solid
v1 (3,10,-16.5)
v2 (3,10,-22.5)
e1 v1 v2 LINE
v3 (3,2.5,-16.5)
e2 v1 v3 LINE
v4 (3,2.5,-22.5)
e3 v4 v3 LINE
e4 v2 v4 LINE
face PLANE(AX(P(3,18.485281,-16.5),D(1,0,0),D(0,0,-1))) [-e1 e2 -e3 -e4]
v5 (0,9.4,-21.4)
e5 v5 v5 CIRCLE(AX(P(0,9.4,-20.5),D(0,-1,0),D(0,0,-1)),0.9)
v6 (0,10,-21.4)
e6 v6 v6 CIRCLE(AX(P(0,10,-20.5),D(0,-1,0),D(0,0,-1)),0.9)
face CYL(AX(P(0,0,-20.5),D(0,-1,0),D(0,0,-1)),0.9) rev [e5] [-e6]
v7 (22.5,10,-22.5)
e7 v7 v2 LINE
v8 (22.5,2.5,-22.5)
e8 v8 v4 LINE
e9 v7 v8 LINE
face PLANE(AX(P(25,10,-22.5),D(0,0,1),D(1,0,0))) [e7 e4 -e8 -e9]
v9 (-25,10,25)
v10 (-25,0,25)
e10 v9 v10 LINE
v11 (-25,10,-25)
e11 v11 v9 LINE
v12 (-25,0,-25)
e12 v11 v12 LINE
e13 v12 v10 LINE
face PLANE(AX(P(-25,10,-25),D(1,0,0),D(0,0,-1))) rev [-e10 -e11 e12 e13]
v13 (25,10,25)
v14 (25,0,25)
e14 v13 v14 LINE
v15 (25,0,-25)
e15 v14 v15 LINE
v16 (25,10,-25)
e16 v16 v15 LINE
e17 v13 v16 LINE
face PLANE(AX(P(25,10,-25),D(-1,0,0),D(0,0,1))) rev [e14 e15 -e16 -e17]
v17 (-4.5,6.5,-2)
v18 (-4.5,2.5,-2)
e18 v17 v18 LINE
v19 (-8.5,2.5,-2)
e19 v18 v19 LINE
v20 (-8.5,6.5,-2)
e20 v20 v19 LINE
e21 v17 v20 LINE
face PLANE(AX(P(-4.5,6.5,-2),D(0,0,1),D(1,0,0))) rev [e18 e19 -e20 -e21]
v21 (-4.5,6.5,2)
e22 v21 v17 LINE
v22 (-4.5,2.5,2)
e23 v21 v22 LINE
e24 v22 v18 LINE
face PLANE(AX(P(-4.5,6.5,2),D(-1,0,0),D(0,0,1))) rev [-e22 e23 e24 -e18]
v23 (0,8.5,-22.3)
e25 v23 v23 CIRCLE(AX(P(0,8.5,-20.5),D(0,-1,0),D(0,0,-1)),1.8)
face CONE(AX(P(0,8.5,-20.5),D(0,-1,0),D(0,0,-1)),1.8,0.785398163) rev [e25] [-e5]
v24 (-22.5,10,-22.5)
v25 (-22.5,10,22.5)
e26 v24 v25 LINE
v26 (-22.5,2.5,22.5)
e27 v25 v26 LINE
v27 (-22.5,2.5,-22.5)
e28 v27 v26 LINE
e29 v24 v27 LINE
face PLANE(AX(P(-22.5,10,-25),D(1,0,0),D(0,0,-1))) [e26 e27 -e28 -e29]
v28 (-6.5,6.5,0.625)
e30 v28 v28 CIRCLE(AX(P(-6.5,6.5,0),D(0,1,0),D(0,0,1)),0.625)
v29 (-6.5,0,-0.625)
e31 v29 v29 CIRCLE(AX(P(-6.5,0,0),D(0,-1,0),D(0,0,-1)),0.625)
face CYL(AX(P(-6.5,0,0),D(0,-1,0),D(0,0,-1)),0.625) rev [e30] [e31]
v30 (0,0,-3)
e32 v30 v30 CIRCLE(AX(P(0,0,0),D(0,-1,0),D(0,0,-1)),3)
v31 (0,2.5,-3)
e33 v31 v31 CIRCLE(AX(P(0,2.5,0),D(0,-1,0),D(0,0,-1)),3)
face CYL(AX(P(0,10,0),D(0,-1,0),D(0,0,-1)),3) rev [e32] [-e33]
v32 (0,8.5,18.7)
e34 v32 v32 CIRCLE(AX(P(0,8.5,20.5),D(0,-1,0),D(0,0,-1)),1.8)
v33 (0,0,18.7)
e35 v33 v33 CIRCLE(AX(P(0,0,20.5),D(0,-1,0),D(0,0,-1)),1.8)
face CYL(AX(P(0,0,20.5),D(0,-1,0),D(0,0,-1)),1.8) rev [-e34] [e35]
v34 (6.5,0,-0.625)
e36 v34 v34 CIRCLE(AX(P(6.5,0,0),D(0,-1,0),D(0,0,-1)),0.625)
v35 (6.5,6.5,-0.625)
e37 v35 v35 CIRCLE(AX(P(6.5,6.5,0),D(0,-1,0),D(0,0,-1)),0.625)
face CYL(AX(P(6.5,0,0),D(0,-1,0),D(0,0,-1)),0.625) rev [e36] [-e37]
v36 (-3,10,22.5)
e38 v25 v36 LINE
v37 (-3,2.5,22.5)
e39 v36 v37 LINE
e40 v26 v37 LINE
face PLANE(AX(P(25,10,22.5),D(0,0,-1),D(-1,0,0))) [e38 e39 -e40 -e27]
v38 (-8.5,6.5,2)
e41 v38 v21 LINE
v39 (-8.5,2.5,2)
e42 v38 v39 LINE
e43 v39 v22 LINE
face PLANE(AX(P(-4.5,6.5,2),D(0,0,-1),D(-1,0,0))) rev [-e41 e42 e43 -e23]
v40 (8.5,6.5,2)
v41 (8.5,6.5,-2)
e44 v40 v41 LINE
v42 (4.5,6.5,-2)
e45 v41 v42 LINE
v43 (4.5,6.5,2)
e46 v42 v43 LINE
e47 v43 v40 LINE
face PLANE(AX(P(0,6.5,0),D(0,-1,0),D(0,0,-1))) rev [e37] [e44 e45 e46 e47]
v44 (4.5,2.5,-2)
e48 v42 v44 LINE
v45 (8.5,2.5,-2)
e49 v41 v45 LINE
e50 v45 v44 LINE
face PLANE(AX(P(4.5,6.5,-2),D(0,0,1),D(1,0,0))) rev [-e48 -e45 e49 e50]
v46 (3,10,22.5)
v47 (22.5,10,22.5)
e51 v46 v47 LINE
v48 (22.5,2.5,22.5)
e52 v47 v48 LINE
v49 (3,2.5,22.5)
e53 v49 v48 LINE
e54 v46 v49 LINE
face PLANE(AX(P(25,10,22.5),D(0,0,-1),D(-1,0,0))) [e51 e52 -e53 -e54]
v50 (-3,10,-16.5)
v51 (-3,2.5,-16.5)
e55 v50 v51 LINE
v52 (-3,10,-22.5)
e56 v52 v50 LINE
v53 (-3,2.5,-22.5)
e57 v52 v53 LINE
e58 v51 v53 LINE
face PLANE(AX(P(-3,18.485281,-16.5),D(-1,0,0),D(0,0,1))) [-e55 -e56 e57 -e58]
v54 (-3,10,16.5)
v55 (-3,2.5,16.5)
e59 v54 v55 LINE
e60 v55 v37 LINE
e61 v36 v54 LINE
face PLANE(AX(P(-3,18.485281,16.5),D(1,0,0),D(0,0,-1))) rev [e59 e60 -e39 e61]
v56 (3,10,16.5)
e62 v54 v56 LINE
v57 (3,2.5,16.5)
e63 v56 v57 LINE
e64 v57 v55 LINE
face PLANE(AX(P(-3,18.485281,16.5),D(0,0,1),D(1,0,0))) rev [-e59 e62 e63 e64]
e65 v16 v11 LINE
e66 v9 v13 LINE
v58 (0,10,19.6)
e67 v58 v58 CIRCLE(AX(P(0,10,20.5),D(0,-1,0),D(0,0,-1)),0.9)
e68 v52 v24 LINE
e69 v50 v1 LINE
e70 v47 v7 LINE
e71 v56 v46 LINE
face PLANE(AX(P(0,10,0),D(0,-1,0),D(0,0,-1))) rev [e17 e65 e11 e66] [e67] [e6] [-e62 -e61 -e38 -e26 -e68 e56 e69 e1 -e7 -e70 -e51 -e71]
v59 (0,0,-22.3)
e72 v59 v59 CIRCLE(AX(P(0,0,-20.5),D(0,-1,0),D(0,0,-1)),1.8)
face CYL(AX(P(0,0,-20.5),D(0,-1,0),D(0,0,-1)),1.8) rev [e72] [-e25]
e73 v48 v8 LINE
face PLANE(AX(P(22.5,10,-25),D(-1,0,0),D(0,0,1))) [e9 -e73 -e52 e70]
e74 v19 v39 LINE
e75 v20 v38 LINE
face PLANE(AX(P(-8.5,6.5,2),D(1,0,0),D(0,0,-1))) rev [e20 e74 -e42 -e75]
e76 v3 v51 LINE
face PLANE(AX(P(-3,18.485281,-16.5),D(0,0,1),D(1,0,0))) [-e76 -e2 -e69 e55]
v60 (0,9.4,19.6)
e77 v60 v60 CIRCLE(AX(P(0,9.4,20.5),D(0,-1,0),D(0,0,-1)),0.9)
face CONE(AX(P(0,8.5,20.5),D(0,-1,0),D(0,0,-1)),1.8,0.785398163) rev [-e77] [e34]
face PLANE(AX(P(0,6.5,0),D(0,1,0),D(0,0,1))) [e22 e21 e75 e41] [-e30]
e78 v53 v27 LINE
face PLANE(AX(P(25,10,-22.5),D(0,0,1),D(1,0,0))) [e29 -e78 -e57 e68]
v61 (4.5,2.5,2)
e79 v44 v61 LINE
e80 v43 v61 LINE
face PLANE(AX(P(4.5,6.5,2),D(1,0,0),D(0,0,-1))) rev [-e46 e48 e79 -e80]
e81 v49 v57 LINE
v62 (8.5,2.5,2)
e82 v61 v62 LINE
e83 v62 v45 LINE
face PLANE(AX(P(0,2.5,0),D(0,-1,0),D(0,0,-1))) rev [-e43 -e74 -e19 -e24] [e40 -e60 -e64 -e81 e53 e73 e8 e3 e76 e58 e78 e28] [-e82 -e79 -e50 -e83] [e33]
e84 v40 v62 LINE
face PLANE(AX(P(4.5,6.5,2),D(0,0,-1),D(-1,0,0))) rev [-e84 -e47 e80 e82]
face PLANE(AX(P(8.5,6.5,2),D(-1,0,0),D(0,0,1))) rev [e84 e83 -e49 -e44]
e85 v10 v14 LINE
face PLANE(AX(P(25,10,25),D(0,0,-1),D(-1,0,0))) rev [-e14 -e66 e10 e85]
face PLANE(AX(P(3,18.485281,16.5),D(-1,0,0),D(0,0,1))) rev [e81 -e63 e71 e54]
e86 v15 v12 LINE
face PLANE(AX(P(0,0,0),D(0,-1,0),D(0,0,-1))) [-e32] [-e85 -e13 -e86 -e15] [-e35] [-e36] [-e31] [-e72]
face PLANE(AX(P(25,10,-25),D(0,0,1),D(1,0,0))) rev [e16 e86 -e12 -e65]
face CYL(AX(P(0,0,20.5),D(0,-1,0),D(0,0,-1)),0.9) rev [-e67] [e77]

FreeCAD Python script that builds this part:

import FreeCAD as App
import Part
import Sketcher

V = App.Vector
Q = App.Units.Quantity


def faces_at(feature, points):
    """Names of the faces that lie closest to the given points."""
    faces = feature.Shape.Faces
    near = lambda p: min(range(len(faces)), key=lambda i: faces[i].distToShape(Part.Vertex(*p))[0])
    return sorted({f"Face{near(p) + 1}" for p in points})

doc = App.newDocument("Part")
body = doc.addObject("PartDesign::Body", "Body")

# Sketch on XZ plane
sketch1 = doc.addObject("Sketcher::SketchObject", "Sketch")
body.addObject(sketch1)
sketch1.AttachmentSupport = (doc.XZ_Plane, [""])
sketch1.MapMode = "FlatFace"
sketch1.addGeometry([
    Part.LineSegment(V(-25, -25, 0), V(-25, 25, 0)),
    Part.LineSegment(V(-25, 25, 0), V(25, 25, 0)),
    Part.LineSegment(V(25, 25, 0), V(25, -25, 0)),
    Part.LineSegment(V(25, -25, 0), V(-25, -25, 0)),
], False)
sketch1.addConstraint([
    Sketcher.Constraint("Coincident", 0, 2, 1, 1),
    Sketcher.Constraint("Coincident", 1, 2, 2, 1),
    Sketcher.Constraint("Coincident", 2, 2, 3, 1),
    Sketcher.Constraint("Coincident", 3, 2, 0, 1),
    Sketcher.Constraint("Vertical", 0),
    Sketcher.Constraint("Horizontal", 1),
    Sketcher.Constraint("Vertical", 2),
    Sketcher.Constraint("Horizontal", 3),
    Sketcher.Constraint("Symmetric", 0, 2, 2, 2, -1, 1),
    Sketcher.Constraint("Equal", 3, 0),
    Sketcher.Constraint("DistanceX", 1, 1, 1, 2, 50.0),
])
pad1 = doc.addObject("PartDesign::Pad", "Pad")
body.addObject(pad1)
pad1.Profile = sketch1
pad1.Length = 10
pad1.Reversed = True
doc.recompute()

thickness = doc.addObject("PartDesign::Thickness", "Thickness")
body.addObject(thickness)
thickness.Base = (pad1, faces_at(pad1, [(0, 10, 0)]))
thickness.Value = 2.5
thickness.Reversed = True
thickness.Join = "Intersection"

# Sketch on XZ plane
sketch2 = doc.addObject("Sketcher::SketchObject", "Sketch001")
body.addObject(sketch2)
sketch2.AttachmentSupport = (doc.XZ_Plane, [""])
sketch2.MapMode = "FlatFace"
sketch2.AttachmentOffset = App.Placement(V(0, 0, -2.5), App.Rotation())
sketch2.addGeometry([
    Part.LineSegment(V(-3, 16.5, 0), V(-3, 22.5, 0)),
    Part.LineSegment(V(-3, 22.5, 0), V(3, 22.5, 0)),
    Part.LineSegment(V(3, 22.5, 0), V(3, 16.5, 0)),
    Part.LineSegment(V(3, 16.5, 0), V(-3, 16.5, 0)),
], False)
sketch2.addConstraint([
    Sketcher.Constraint("Coincident", 0, 2, 1, 1),
    Sketcher.Constraint("Coincident", 1, 2, 2, 1),
    Sketcher.Constraint("Coincident", 2, 2, 3, 1),
    Sketcher.Constraint("Coincident", 3, 2, 0, 1),
    Sketcher.Constraint("Vertical", 0),
    Sketcher.Constraint("Horizontal", 1),
    Sketcher.Constraint("Vertical", 2),
    Sketcher.Constraint("Horizontal", 3),
    Sketcher.Constraint("Equal", 3, 0),
    Sketcher.Constraint("DistanceX", 1, 1, 1, 2, 6.0),
    Sketcher.Constraint("DistanceX", 0, 2, -1, 1, 3.0),
    Sketcher.Constraint("DistanceY", -1, 1, 0, 2, 22.5),
])
pad2 = doc.addObject("PartDesign::Pad", "Pad001")
body.addObject(pad2)
pad2.Profile = sketch2
pad2.Length = 7.5
pad2.Reversed = True

# Sketch on YZ plane
sketch3 = doc.addObject("Sketcher::SketchObject", "Sketch002")
body.addObject(sketch3)
sketch3.AttachmentSupport = (doc.YZ_Plane, [""])
sketch3.MapMode = "FlatFace"
sketch3.addGeometry([
    Part.LineSegment(V(10, 20.5, 0), V(0, 20.5, 0)),  # 0
    Part.LineSegment(V(0, 20.5, 0), V(0, 18.7, 0)),  # 1
    Part.LineSegment(V(0, 18.7, 0), V(8.5, 18.7, 0)),  # 2
    Part.LineSegment(V(8.5, 18.7, 0), V(9.4, 19.6, 0)),  # 3
    Part.LineSegment(V(9.4, 19.6, 0), V(10, 19.6, 0)),  # 4
    Part.LineSegment(V(10, 19.6, 0), V(10, 20.5, 0)),  # 5
], False)
sketch3.addGeometry(Part.LineSegment(V(0, 20.5, 0), V(10, 20.5, 0)), True)  # axis
sketch3.addConstraint([
    Sketcher.Constraint("Coincident", 0, 2, 1, 1),
    Sketcher.Constraint("Coincident", 1, 2, 2, 1),
    Sketcher.Constraint("Coincident", 2, 2, 3, 1),
    Sketcher.Constraint("Coincident", 3, 2, 4, 1),
    Sketcher.Constraint("Coincident", 4, 2, 5, 1),
    Sketcher.Constraint("Coincident", 5, 2, 0, 1),
    Sketcher.Constraint("Horizontal", 0),
    Sketcher.Constraint("Vertical", 1),
    Sketcher.Constraint("Horizontal", 2),
    Sketcher.Constraint("Horizontal", 4),
    Sketcher.Constraint("Vertical", 5),
    Sketcher.Constraint("Horizontal", 6),
    Sketcher.Constraint("Coincident", 6, 1, 0, 2),
    Sketcher.Constraint("PointOnObject", 0, 2, -2),
    Sketcher.Constraint("Vertical", 4, 2, 6, 2),
    Sketcher.Constraint("DistanceX", 0, 2, 0, 1, 10.0),
    Sketcher.Constraint("Angle", 3, Q("45 deg")),
    Sketcher.Constraint("DistanceX", 2, 1, 2, 2, 8.5),
    Sketcher.Constraint("DistanceX", 4, 1, 4, 2, 0.6),
    Sketcher.Constraint("DistanceY", 1, 2, 1, 1, 1.8),
    Sketcher.Constraint("DistanceY", -1, 1, 0, 2, 20.5),
])
groove = doc.addObject("PartDesign::Groove", "Groove")
body.addObject(groove)
groove.Profile = sketch3
groove.ReferenceAxis = (sketch3, ["Axis0"])
groove.Angle = 360
doc.recompute()

mirrored = doc.addObject("PartDesign::Mirrored", "Mirrored")
body.addObject(mirrored)
mirrored.Originals = [pad2, groove]
mirrored.MirrorPlane = (doc.XY_Plane, [""])
body.Tip = mirrored

# Sketch on XZ plane
sketch4 = doc.addObject("Sketcher::SketchObject", "Sketch003")
body.addObject(sketch4)
sketch4.AttachmentSupport = (doc.XZ_Plane, [""])
sketch4.MapMode = "FlatFace"
sketch4.addGeometry(Part.Circle(V(0, 0, 0), V(0, 0, 1), 3), False)
sketch4.addConstraint([
    Sketcher.Constraint("Coincident", 0, 3, -1, 1),
    Sketcher.Constraint("Diameter", 0, 6.0),
])
pocket1 = doc.addObject("PartDesign::Pocket", "Pocket")
body.addObject(pocket1)
pocket1.Profile = sketch4
pocket1.Type = "ThroughAll"

# Sketch on XZ plane
sketch5 = doc.addObject("Sketcher::SketchObject", "Sketch004")
body.addObject(sketch5)
sketch5.AttachmentSupport = (doc.XZ_Plane, [""])
sketch5.MapMode = "FlatFace"
sketch5.AttachmentOffset = App.Placement(V(0, 0, -2.5), App.Rotation())
sketch5.addGeometry([
    Part.LineSegment(V(-8.5, -2, 0), V(-8.5, 2, 0)),  # 0
    Part.LineSegment(V(-8.5, 2, 0), V(-4.5, 2, 0)),  # 1
    Part.LineSegment(V(-4.5, 2, 0), V(-4.5, -2, 0)),  # 2
    Part.LineSegment(V(-4.5, -2, 0), V(-8.5, -2, 0)),  # 3
    Part.LineSegment(V(4.5, -2, 0), V(4.5, 2, 0)),  # 4
    Part.LineSegment(V(4.5, 2, 0), V(8.5, 2, 0)),  # 5
    Part.LineSegment(V(8.5, 2, 0), V(8.5, -2, 0)),  # 6
    Part.LineSegment(V(8.5, -2, 0), V(4.5, -2, 0)),  # 7
], False)
sketch5.addConstraint([
    Sketcher.Constraint("Coincident", 0, 2, 1, 1),
    Sketcher.Constraint("Coincident", 1, 2, 2, 1),
    Sketcher.Constraint("Coincident", 2, 2, 3, 1),
    Sketcher.Constraint("Coincident", 3, 2, 0, 1),
    Sketcher.Constraint("Coincident", 4, 2, 5, 1),
    Sketcher.Constraint("Coincident", 5, 2, 6, 1),
    Sketcher.Constraint("Coincident", 6, 2, 7, 1),
    Sketcher.Constraint("Coincident", 7, 2, 4, 1),
    Sketcher.Constraint("Vertical", 0),
    Sketcher.Constraint("Horizontal", 1),
    Sketcher.Constraint("Vertical", 2),
    Sketcher.Constraint("Horizontal", 3),
    Sketcher.Constraint("Vertical", 4),
    Sketcher.Constraint("Horizontal", 5),
    Sketcher.Constraint("Vertical", 6),
    Sketcher.Constraint("Horizontal", 7),
    Sketcher.Constraint("Symmetric", 2, 2, 4, 2, -1, 1),
    Sketcher.Constraint("Symmetric", 0, 2, 6, 2, -1, 1),
    Sketcher.Constraint("Horizontal", 1, 2, 4, 2),
    Sketcher.Constraint("Equal", 7, 0),
    Sketcher.Constraint("DistanceX", 1, 1, 1, 2, 4.0),
    Sketcher.Constraint("DistanceX", 1, 2, 4, 2, 9.0),
])
pad3 = doc.addObject("PartDesign::Pad", "Pad002")
body.addObject(pad3)
pad3.Profile = sketch5
pad3.Length = 4
pad3.Reversed = True

# Sketch on XZ plane
sketch6 = doc.addObject("Sketcher::SketchObject", "Sketch005")
body.addObject(sketch6)
sketch6.AttachmentSupport = (doc.XZ_Plane, [""])
sketch6.MapMode = "FlatFace"
sketch6.addGeometry([
    Part.Circle(V(6.5, 0, 0), V(0, 0, 1), 0.625),
    Part.Circle(V(-6.5, 0, 0), V(0, 0, 1), 0.625),
], False)
sketch6.addConstraint([
    Sketcher.Constraint("Equal", 0, 1),
    Sketcher.Constraint("Symmetric", 0, 3, 1, 3, -1, 1),
    Sketcher.Constraint("PointOnObject", 0, 3, -1),
    Sketcher.Constraint("Diameter", 0, 1.25),
    Sketcher.Constraint("DistanceX", 1, 3, 0, 3, 13.0),
])
doc.recompute()
hole = doc.addObject("PartDesign::Hole", "Hole")
body.addObject(hole)
hole.Profile = sketch6
hole.ThreadType = "None"
hole.Diameter = 1.25
hole.DepthType = "ThroughAll"

doc.recompute()
